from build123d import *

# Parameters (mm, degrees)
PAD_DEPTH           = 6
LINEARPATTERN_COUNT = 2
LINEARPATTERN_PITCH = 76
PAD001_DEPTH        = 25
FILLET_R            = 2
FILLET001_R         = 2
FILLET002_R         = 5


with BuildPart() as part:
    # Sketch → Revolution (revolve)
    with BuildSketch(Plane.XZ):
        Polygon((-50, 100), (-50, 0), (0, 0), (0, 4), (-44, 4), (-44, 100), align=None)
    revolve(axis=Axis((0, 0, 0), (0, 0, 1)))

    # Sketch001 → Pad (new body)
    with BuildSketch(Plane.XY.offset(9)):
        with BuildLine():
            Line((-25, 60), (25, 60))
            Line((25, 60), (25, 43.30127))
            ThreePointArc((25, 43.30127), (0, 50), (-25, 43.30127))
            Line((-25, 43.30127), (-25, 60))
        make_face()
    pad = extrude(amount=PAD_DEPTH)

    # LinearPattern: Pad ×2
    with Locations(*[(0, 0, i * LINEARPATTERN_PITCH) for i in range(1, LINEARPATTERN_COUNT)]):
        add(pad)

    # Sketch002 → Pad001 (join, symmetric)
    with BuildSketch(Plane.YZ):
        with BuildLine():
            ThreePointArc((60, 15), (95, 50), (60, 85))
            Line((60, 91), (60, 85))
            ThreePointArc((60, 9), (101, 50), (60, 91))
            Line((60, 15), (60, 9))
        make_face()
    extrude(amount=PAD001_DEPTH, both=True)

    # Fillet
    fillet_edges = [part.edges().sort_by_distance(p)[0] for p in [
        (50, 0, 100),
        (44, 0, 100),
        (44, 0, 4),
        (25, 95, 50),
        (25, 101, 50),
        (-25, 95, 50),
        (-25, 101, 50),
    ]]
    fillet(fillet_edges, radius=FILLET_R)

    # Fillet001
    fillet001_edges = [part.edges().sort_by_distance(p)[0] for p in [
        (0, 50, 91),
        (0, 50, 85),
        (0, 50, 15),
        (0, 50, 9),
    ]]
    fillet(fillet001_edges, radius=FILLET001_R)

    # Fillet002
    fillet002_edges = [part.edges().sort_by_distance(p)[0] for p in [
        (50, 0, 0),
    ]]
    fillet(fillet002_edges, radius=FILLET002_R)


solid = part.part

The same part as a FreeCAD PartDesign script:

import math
import FreeCAD as App
import Part
import Sketcher
Q = App.Units.Quantity


def edges_at(feature, points):
    """Names of the edges that pass closest to the given points."""
    edges = feature.Shape.Edges
    near = lambda p: min(range(len(edges)), key=lambda i: edges[i].distToShape(Part.Vertex(*p))[0])
    return sorted({f"Edge{near(p) + 1}" for p in points})


def add_polygon(sketch, points):
    """Adds a closed chain of lines whose ends are joined by coincident constraints."""
    first, n = sketch.GeometryCount, len(points)
    for a, b in zip(points, points[1:] + points[:1]):
        sketch.addGeometry(Part.LineSegment(App.Vector(*a, 0), App.Vector(*b, 0)), False)
    for i in range(n):
        sketch.addConstraint(Sketcher.Constraint("Coincident", first + i, 2, first + (i + 1) % n, 1))

doc = App.newDocument("Part")
body = doc.addObject("PartDesign::Body", "Body")

sketch1 = body.newObject("Sketcher::SketchObject", "Sketch")
sketch1.AttachmentSupport = (doc.getObject("XZ_Plane"), [""])
sketch1.MapMode = "FlatFace"
add_polygon(sketch1, [(-50, 100), (-50, 0), (0, 0), (0, 4), (-44, 4), (-44, 100)])
sketch1.addConstraint(Sketcher.Constraint("Vertical", 0))
sketch1.addConstraint(Sketcher.Constraint("Horizontal", 1))
sketch1.addConstraint(Sketcher.Constraint("Vertical", 2))
sketch1.addConstraint(Sketcher.Constraint("Horizontal", 3))
sketch1.addConstraint(Sketcher.Constraint("Vertical", 4))
sketch1.addConstraint(Sketcher.Constraint("Horizontal", 5))
sketch1.addConstraint(Sketcher.Constraint("Coincident", 1, 2, -1, 1))
sketch1.addConstraint(Sketcher.Constraint("DistanceX", 1, 1, 1, 2, Q("50 mm")))
sketch1.addConstraint(Sketcher.Constraint("DistanceX", 3, 2, 3, 1, Q("44 mm")))
sketch1.addConstraint(Sketcher.Constraint("DistanceY", 0, 2, 0, 1, Q("100 mm")))
sketch1.addConstraint(Sketcher.Constraint("DistanceY", 2, 1, 2, 2, Q("4 mm")))
revolution = body.newObject("PartDesign::Revolution", "Revolution")
revolution.Profile = sketch1
revolution.ReferenceAxis = (sketch1, ["V_Axis"])
revolution.Angle = 360

sketch2 = body.newObject("Sketcher::SketchObject", "Sketch001")
sketch2.AttachmentSupport = (doc.getObject("XY_Plane"), [""])
sketch2.MapMode = "FlatFace"
sketch2.AttachmentOffset = App.Placement(App.Vector(0, 0, 9), App.Rotation())
sketch2.addGeometry(Part.LineSegment(App.Vector(25, 60, 0), App.Vector(-25, 60, 0)), False)
sketch2.addGeometry(Part.LineSegment(App.Vector(-25, 60, 0), App.Vector(-25, 43.30127, 0)), False)
sketch2.addGeometry(Part.ArcOfCircle(Part.Circle(App.Vector(0, 0.000001, 0), App.Vector(0, 0, 1), 49.999999), math.radians(59.999999), math.radians(120.000001)), False)
sketch2.addGeometry(Part.LineSegment(App.Vector(25, 43.30127, 0), App.Vector(25, 60, 0)), False)
sketch2.addConstraint(Sketcher.Constraint("Coincident", 0, 2, 1, 1))
sketch2.addConstraint(Sketcher.Constraint("Coincident", 1, 2, 2, 2))
sketch2.addConstraint(Sketcher.Constraint("Coincident", 2, 1, 3, 1))
sketch2.addConstraint(Sketcher.Constraint("Coincident", 3, 2, 0, 1))
sketch2.addConstraint(Sketcher.Constraint("Horizontal", 0))
sketch2.addConstraint(Sketcher.Constraint("Vertical", 1))
sketch2.addConstraint(Sketcher.Constraint("Vertical", 3))
sketch2.addConstraint(Sketcher.Constraint("Coincident", 2, 3, -1, 1))
sketch2.addConstraint(Sketcher.Constraint("Horizontal", 1, 2, 2, 1))
sketch2.addConstraint(Sketcher.Constraint("Radius", 2, Q("49.999999 mm")))
sketch2.addConstraint(Sketcher.Constraint("DistanceX", 0, 2, 0, 1, Q("50 mm")))
sketch2.addConstraint(Sketcher.Constraint("DistanceY", -1, 1, 0, 2, Q("60 mm")))
pad1 = body.newObject("PartDesign::Pad", "Pad")
pad1.Profile = sketch2
pad1.Length = 6
doc.recompute()

linearpattern = body.newObject("PartDesign::LinearPattern", "LinearPattern")
linearpattern.Originals = [pad1]
linearpattern.Direction = (doc.getObject("Z_Axis"), [""])
linearpattern.Mode = "offset"
linearpattern.Offset = 76
linearpattern.Occurrences = 2
body.Tip = linearpattern

sketch3 = body.newObject("Sketcher::SketchObject", "Sketch002")
sketch3.AttachmentSupport = (doc.getObject("YZ_Plane"), [""])
sketch3.MapMode = "FlatFace"
sketch3.addGeometry(Part.ArcOfCircle(Part.Circle(App.Vector(60, 50, 0), App.Vector(0, 0, 1), 35), math.radians(-90), math.radians(90)), False)
sketch3.addGeometry(Part.LineSegment(App.Vector(60, 15, 0), App.Vector(60, 9, 0)), False)
sketch3.addGeometry(Part.ArcOfCircle(Part.Circle(App.Vector(60, 50, 0), App.Vector(0, 0, 1), 41), math.radians(-90), math.radians(90)), False)
sketch3.addGeometry(Part.LineSegment(App.Vector(60, 91, 0), App.Vector(60, 85, 0)), False)
sketch3.addConstraint(Sketcher.Constraint("Coincident", 0, 1, 1, 1))
sketch3.addConstraint(Sketcher.Constraint("Coincident", 1, 2, 2, 1))
sketch3.addConstraint(Sketcher.Constraint("Coincident", 2, 2, 3, 1))
sketch3.addConstraint(Sketcher.Constraint("Coincident", 3, 2, 0, 2))
sketch3.addConstraint(Sketcher.Constraint("Vertical", 1))
sketch3.addConstraint(Sketcher.Constraint("Vertical", 3))
sketch3.addConstraint(Sketcher.Constraint("Coincident", 2, 3, 0, 3))
sketch3.addConstraint(Sketcher.Constraint("Vertical", 2, 3, 0, 1))
sketch3.addConstraint(Sketcher.Constraint("Vertical", 1, 2, 2, 2))
sketch3.addConstraint(Sketcher.Constraint("Radius", 0, Q("35 mm")))
sketch3.addConstraint(Sketcher.Constraint("Radius", 2, Q("41 mm")))
sketch3.addConstraint(Sketcher.Constraint("DistanceX", -1, 1, 0, 3, Q("60 mm")))
sketch3.addConstraint(Sketcher.Constraint("DistanceY", -1, 1, 0, 3, Q("50 mm")))
pad2 = body.newObject("PartDesign::Pad", "Pad001")
pad2.Profile = sketch3
pad2.Length = 50
pad2.Midplane = True
doc.recompute()

fillet = body.newObject("PartDesign::Fillet", "Fillet")
fillet.Base = (pad2, edges_at(pad2, [
    (50, 0, 100),
    (44, 0, 100),
    (44, 0, 4),
    (25, 95, 50),
    (25, 101, 50),
    (-25, 95, 50),
    (-25, 101, 50),
]))
fillet.Radius = 2
doc.recompute()

fillet2 = body.newObject("PartDesign::Fillet", "Fillet001")
fillet2.Base = (fillet, edges_at(fillet, [
    (0, 50, 91),
    (0, 50, 85),
    (0, 50, 15),
    (0, 50, 9),
]))
fillet2.Radius = 2
doc.recompute()

fillet3 = body.newObject("PartDesign::Fillet", "Fillet002")
fillet3.Base = (fillet2, edges_at(fillet2, [(50, 0, 0)]))
fillet3.Radius = 5

doc.recompute()
